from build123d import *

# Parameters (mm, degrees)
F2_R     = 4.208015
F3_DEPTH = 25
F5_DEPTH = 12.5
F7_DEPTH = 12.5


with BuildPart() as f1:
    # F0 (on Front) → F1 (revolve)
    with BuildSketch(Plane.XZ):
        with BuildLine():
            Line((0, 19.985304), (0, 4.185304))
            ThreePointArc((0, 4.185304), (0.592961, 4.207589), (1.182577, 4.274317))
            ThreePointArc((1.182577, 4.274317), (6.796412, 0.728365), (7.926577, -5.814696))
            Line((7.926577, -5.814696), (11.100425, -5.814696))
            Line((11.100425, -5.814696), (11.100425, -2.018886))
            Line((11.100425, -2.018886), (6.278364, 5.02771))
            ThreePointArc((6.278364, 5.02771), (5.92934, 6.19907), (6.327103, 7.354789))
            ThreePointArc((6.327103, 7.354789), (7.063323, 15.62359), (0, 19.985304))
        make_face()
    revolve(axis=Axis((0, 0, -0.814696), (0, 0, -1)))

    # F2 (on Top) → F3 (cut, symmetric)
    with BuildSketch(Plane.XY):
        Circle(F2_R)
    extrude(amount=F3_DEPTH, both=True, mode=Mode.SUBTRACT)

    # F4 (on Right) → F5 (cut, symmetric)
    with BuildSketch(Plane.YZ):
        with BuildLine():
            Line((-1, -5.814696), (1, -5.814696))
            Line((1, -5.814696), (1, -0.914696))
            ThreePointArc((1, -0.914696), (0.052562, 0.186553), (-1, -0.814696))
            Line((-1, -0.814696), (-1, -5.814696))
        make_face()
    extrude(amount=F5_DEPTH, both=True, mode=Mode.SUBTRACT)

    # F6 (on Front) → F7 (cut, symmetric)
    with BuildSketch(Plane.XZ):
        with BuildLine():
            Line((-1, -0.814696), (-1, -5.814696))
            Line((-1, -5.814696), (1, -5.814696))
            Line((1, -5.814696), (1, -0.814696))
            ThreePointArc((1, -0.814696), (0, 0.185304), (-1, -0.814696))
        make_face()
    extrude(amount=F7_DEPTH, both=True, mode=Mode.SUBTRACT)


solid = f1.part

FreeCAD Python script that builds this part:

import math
import FreeCAD as App
import Part
import Sketcher

doc = App.newDocument("Part")
body = doc.addObject("PartDesign::Body", "Body")

# Sketch on XZ plane
sketch1 = doc.addObject("Sketcher::SketchObject", "Sketch")
body.addObject(sketch1)
sketch1.AttachmentSupport = (doc.XZ_Plane, [""])
sketch1.MapMode = "FlatFace"
sketch1.addGeometry([
    Part.LineSegment(App.Vector(0, 19.985304, 0), App.Vector(0, 4.185304, 0)),  # 0
    Part.ArcOfCircle(Part.Circle(App.Vector(-0.000009, 12.085456, 0), App.Vector(0, 0, 1), 7.900152), math.radians(-89.999936), math.radians(-81.390949)),  # 1
    Part.ArcOfCircle(Part.Circle(App.Vector(0, -3.814696, 0), App.Vector(0, 0, 1), 8.175), math.radians(-14.161049), math.radians(81.682538)),  # 2
    Part.LineSegment(App.Vector(7.926577, -5.814696, 0), App.Vector(11.100425, -5.814696, 0)),  # 3
    Part.LineSegment(App.Vector(11.100425, -5.814696, 0), App.Vector(11.100425, -2.018886, 0)),  # 4
    Part.LineSegment(App.Vector(11.100425, -2.018886, 0), App.Vector(6.278364, 5.02771, 0)),  # 5
    Part.ArcOfCircle(Part.Circle(App.Vector(7.928902, 6.157191, 0), App.Vector(0, 0, 1), 2), math.radians(143.216064), math.radians(214.384249)),  # 6
    Part.ArcOfCircle(Part.Circle(App.Vector(0, 12.085304, 0), App.Vector(0, 0, 1), 7.9), math.radians(-36.783953), math.radians(89.999999)),  # 7
], False)
sketch1.addConstraint([
    Sketcher.Constraint("Coincident", 0, 2, 1, 1),
    Sketcher.Constraint("Coincident", 1, 2, 2, 2),
    Sketcher.Constraint("Coincident", 2, 1, 3, 1),
    Sketcher.Constraint("Coincident", 3, 2, 4, 1),
    Sketcher.Constraint("Coincident", 4, 2, 5, 1),
    Sketcher.Constraint("Tangent", 5, 2, 6, 2),
    Sketcher.Constraint("Tangent", 6, 1, 7, 1),
    Sketcher.Constraint("Coincident", 7, 2, 0, 1),
    Sketcher.Constraint("Vertical", 0),
    Sketcher.Constraint("Horizontal", 3),
    Sketcher.Constraint("Vertical", 4),
    Sketcher.Constraint("PointOnObject", 2, 3, -2),
    Sketcher.Constraint("PointOnObject", 7, 3, -2),
    Sketcher.Constraint("PointOnObject", 0, 2, -2),
    Sketcher.Constraint("Radius", 6, 2.0),
    Sketcher.Constraint("Radius", 7, 7.9),
    Sketcher.Constraint("DistanceY", 0, 2, 0, 1, 15.8),
    Sketcher.Constraint("Radius", 2, 8.175),
    Sketcher.Constraint("DistanceY", 2, 3, 0, 2, 8.0),
    Sketcher.Constraint("DistanceY", 2, 1, 2, 3, 2.0),
    Sketcher.Constraint("Radius", 1, 7.900152),
    Sketcher.Constraint("DistanceX", 1, 2, 2, 1, 6.744),
    Sketcher.Constraint("DistanceY", 4, 1, 4, 2, 3.79581),
    Sketcher.Constraint("DistanceX", -1, 1, 6, 3, 7.928902),
    Sketcher.Constraint("DistanceX", 3, 1, 3, 2, 3.173848),
    Sketcher.Constraint("DistanceY", -1, 1, 6, 3, 6.157191),
])
revolution = doc.addObject("PartDesign::Revolution", "Revolution")
body.addObject(revolution)
revolution.Profile = sketch1
revolution.ReferenceAxis = (sketch1, ["V_Axis"])
revolution.Angle = 360

# Sketch on XY plane
sketch2 = doc.addObject("Sketcher::SketchObject", "Sketch001")
body.addObject(sketch2)
sketch2.AttachmentSupport = (doc.XY_Plane, [""])
sketch2.MapMode = "FlatFace"
sketch2.addGeometry(Part.Circle(App.Vector(0, 0, 0), App.Vector(0, 0, 1), 4.208015), False)
sketch2.addConstraint([
    Sketcher.Constraint("Coincident", 0, 3, -1, 1),
    Sketcher.Constraint("Diameter", 0, 8.41603),
])
pocket1 = doc.addObject("PartDesign::Pocket", "Pocket")
body.addObject(pocket1)
pocket1.Profile = sketch2
pocket1.Length = 50
pocket1.Midplane = True

# Sketch on YZ plane
sketch3 = doc.addObject("Sketcher::SketchObject", "Sketch002")
body.addObject(sketch3)
sketch3.AttachmentSupport = (doc.YZ_Plane, [""])
sketch3.MapMode = "FlatFace"
sketch3.addGeometry([
    Part.LineSegment(App.Vector(-1, -5.814696, 0), App.Vector(1, -5.814696, 0)),
    Part.LineSegment(App.Vector(1, -5.814696, 0), App.Vector(1, -0.914696, 0)),
    Part.ArcOfCircle(Part.Circle(App.Vector(0.0025, -0.814696, 0), App.Vector(0, 0, 1), 1.0025), math.radians(-5.724797), math.radians(179.999987)),
    Part.LineSegment(App.Vector(-1, -0.814696, 0), App.Vector(-1, -5.814696, 0)),
], False)
sketch3.addConstraint([
    Sketcher.Constraint("Coincident", 0, 2, 1, 1),
    Sketcher.Constraint("Coincident", 1, 2, 2, 1),
    Sketcher.Constraint("Tangent", 2, 2, 3, 1),
    Sketcher.Constraint("Coincident", 3, 2, 0, 1),
    Sketcher.Constraint("Horizontal", 0),
    Sketcher.Constraint("Vertical", 1),
    Sketcher.Constraint("Vertical", 3),
    Sketcher.Constraint("DistanceX", 0, 1, 0, 2, 2.0),
    Sketcher.Constraint("DistanceY", 3, 2, 3, 1, 5.0),
    Sketcher.Constraint("DistanceY", 1, 1, 1, 2, 4.9),
    Sketcher.Constraint("DistanceX", -1, 1, 0, 2, 1.0),
    Sketcher.Constraint("DistanceY", 2, 3, -1, 1, 0.814696),
])
pocket2 = doc.addObject("PartDesign::Pocket", "Pocket001")
body.addObject(pocket2)
pocket2.Profile = sketch3
pocket2.Length = 25
pocket2.Midplane = True

# Sketch on XZ plane
sketch4 = doc.addObject("Sketcher::SketchObject", "Sketch003")
body.addObject(sketch4)
sketch4.AttachmentSupport = (doc.XZ_Plane, [""])
sketch4.MapMode = "FlatFace"
sketch4.addGeometry([
    Part.LineSegment(App.Vector(-1, -0.814696, 0), App.Vector(-1, -5.814696, 0)),
    Part.LineSegment(App.Vector(-1, -5.814696, 0), App.Vector(1, -5.814696, 0)),
    Part.LineSegment(App.Vector(1, -5.814696, 0), App.Vector(1, -0.814696, 0)),
    Part.ArcOfCircle(Part.Circle(App.Vector(0, -0.814696, 0), App.Vector(0, 0, 1), 1), math.radians(0), math.radians(180)),
], False)
sketch4.addConstraint([
    Sketcher.Constraint("Coincident", 0, 2, 1, 1),
    Sketcher.Constraint("Coincident", 1, 2, 2, 1),
    Sketcher.Constraint("Tangent", 2, 2, 3, 1),
    Sketcher.Constraint("Tangent", 3, 2, 0, 1),
    Sketcher.Constraint("Vertical", 0),
    Sketcher.Constraint("Horizontal", 1),
    Sketcher.Constraint("Vertical", 2),
    Sketcher.Constraint("PointOnObject", 3, 3, -2),
    Sketcher.Constraint("Radius", 3, 1.0),
    Sketcher.Constraint("DistanceY", 0, 2, 0, 1, 5.0),
    Sketcher.Constraint("DistanceY", 3, 3, -1, 1, 0.814696),
])
pocket3 = doc.addObject("PartDesign::Pocket", "Pocket002")
body.addObject(pocket3)
pocket3.Profile = sketch4
pocket3.Length = 25
pocket3.Midplane = True

doc.recompute()
